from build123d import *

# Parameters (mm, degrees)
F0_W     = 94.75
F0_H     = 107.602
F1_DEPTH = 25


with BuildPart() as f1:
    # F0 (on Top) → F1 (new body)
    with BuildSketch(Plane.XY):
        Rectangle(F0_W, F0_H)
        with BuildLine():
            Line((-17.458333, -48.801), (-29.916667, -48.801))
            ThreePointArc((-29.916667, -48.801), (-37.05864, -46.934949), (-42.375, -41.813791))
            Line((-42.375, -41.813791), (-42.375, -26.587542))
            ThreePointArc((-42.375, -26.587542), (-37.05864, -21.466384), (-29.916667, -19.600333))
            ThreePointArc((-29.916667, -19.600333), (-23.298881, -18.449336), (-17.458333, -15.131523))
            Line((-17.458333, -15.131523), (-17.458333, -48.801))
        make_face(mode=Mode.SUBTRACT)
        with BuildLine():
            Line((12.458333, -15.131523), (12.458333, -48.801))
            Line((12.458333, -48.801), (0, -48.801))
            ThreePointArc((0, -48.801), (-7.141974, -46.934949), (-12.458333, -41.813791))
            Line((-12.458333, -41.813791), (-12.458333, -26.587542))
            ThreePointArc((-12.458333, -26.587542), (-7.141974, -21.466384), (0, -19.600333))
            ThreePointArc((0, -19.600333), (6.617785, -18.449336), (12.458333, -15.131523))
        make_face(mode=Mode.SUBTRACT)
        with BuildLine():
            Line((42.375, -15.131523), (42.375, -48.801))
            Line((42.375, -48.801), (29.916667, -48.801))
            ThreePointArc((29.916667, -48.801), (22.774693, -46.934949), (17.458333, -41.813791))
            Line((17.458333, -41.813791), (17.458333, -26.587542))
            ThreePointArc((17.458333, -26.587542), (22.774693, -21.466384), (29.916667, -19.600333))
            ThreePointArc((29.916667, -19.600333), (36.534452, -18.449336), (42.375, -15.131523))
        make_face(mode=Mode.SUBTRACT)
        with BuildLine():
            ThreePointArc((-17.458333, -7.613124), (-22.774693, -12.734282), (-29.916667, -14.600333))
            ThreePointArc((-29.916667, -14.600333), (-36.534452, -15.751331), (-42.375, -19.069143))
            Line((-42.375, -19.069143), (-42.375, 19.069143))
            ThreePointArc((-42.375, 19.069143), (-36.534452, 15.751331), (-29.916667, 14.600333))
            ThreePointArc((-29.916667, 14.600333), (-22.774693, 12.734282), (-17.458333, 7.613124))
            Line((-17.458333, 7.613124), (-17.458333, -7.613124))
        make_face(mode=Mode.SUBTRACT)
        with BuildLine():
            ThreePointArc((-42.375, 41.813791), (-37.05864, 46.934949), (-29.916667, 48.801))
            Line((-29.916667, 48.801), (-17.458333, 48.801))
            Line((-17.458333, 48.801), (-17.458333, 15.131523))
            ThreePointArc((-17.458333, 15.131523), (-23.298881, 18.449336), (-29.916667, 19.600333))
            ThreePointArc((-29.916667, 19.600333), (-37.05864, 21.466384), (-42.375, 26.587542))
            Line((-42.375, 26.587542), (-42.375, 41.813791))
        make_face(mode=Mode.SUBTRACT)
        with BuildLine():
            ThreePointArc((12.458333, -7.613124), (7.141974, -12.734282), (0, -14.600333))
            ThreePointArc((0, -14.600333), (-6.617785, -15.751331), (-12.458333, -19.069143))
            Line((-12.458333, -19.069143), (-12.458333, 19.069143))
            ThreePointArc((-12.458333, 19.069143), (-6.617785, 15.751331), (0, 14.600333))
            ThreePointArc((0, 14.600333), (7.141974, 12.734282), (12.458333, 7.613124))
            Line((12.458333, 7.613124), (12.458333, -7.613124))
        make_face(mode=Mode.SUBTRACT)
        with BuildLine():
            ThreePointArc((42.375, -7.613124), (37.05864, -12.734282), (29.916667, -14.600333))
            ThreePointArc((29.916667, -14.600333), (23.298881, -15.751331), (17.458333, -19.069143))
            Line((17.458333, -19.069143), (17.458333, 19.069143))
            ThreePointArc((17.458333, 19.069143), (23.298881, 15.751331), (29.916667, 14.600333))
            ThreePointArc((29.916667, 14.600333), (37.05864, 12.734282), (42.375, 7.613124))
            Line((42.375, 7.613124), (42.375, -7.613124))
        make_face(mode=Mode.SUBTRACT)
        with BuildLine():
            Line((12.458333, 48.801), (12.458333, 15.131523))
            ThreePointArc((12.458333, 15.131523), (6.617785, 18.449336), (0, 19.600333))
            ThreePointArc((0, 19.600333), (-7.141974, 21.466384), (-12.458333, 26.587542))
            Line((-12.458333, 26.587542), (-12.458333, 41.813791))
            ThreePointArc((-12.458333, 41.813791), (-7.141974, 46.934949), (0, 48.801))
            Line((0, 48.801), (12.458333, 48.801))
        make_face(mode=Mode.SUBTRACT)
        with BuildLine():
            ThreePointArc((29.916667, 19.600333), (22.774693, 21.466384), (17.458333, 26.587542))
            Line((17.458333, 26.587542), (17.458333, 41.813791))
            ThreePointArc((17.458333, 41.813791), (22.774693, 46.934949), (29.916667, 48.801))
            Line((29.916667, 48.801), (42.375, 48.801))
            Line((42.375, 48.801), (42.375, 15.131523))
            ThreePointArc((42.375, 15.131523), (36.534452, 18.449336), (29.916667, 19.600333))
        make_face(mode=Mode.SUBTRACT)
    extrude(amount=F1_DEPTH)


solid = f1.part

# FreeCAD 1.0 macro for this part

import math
import FreeCAD as App
import Part
import Sketcher
Q = App.Units.Quantity


def add_polygon(sketch, points):
    """Adds a closed chain of lines whose ends are joined by coincident constraints."""
    first, n = sketch.GeometryCount, len(points)
    for a, b in zip(points, points[1:] + points[:1]):
        sketch.addGeometry(Part.LineSegment(App.Vector(*a, 0), App.Vector(*b, 0)), False)
    for i in range(n):
        sketch.addConstraint(Sketcher.Constraint("Coincident", first + i, 2, first + (i + 1) % n, 1))

doc = App.newDocument("Part")
body = doc.addObject("PartDesign::Body", "Body")

sketch1 = body.newObject("Sketcher::SketchObject", "Sketch")
sketch1.AttachmentSupport = (doc.getObject("XY_Plane"), [""])
sketch1.MapMode = "FlatFace"
add_polygon(sketch1, [(-47, 54), (-47, -54), (47, -54), (47, 54)])
sketch1.addGeometry(Part.LineSegment(App.Vector(-17, -15, 0), App.Vector(-17, -49, 0)), False)
sketch1.addGeometry(Part.LineSegment(App.Vector(-17, -49, 0), App.Vector(-30, -49, 0)), False)
sketch1.addGeometry(Part.ArcOfCircle(Part.Circle(App.Vector(-30, -34, 0), App.Vector(0, 0, 1), 15), math.radians(-149), math.radians(-90)), False)
sketch1.addGeometry(Part.LineSegment(App.Vector(-42, -42, 0), App.Vector(-42, -27, 0)), False)
sketch1.addGeometry(Part.ArcOfCircle(Part.Circle(App.Vector(-30, -34, 0), App.Vector(0, 0, 1), 15), math.radians(90), math.radians(149)), False)
sketch1.addGeometry(Part.ArcOfCircle(Part.Circle(App.Vector(-30, 0, 0), App.Vector(0, 0, 1), 20), math.radians(-90), math.radians(-51)), False)
sketch1.addGeometry(Part.LineSegment(App.Vector(-17, 8, 0), App.Vector(-17, -8, 0)), False)
sketch1.addGeometry(Part.ArcOfCircle(Part.Circle(App.Vector(-30, 0, 0), App.Vector(0, 0, 1), 15), math.radians(-90), math.radians(-31)), False)
sketch1.addGeometry(Part.ArcOfCircle(Part.Circle(App.Vector(-30, -34, 0), App.Vector(0, 0, 1), 20), math.radians(90), math.radians(129)), False)
sketch1.addGeometry(Part.LineSegment(App.Vector(-42, -19, 0), App.Vector(-42, 19, 0)), False)
sketch1.addGeometry(Part.ArcOfCircle(Part.Circle(App.Vector(-30, 34, 0), App.Vector(0, 0, 1), 20), math.radians(-129), math.radians(-90)), False)
sketch1.addGeometry(Part.ArcOfCircle(Part.Circle(App.Vector(-30, 0, 0), App.Vector(0, 0, 1), 15), math.radians(31), math.radians(90)), False)
sketch1.addGeometry(Part.ArcOfCircle(Part.Circle(App.Vector(0, 0, 0), App.Vector(0, 0, 1), 20), math.radians(-90), math.radians(-51)), False)
sketch1.addGeometry(Part.LineSegment(App.Vector(12, -15, 0), App.Vector(12, -49, 0)), False)
sketch1.addGeometry(Part.LineSegment(App.Vector(12, -49, 0), App.Vector(0, -49, 0)), False)
sketch1.addGeometry(Part.ArcOfCircle(Part.Circle(App.Vector(0, -34, 0), App.Vector(0, 0, 1), 15), math.radians(-149), math.radians(-90)), False)
sketch1.addGeometry(Part.LineSegment(App.Vector(-12, -42, 0), App.Vector(-12, -27, 0)), False)
sketch1.addGeometry(Part.ArcOfCircle(Part.Circle(App.Vector(0, -34, 0), App.Vector(0, 0, 1), 15), math.radians(90), math.radians(149)), False)
sketch1.addGeometry(Part.ArcOfCircle(Part.Circle(App.Vector(30, 0, 0), App.Vector(0, 0, 1), 20), math.radians(-90), math.radians(-51)), False)
sketch1.addGeometry(Part.LineSegment(App.Vector(42, -15, 0), App.Vector(42, -49, 0)), False)
sketch1.addGeometry(Part.LineSegment(App.Vector(42, -49, 0), App.Vector(30, -49, 0)), False)
sketch1.addGeometry(Part.ArcOfCircle(Part.Circle(App.Vector(30, -34, 0), App.Vector(0, 0, 1), 15), math.radians(-149), math.radians(-90)), False)
sketch1.addGeometry(Part.LineSegment(App.Vector(17, -42, 0), App.Vector(17, -27, 0)), False)
sketch1.addGeometry(Part.ArcOfCircle(Part.Circle(App.Vector(30, -34, 0), App.Vector(0, 0, 1), 15), math.radians(90), math.radians(149)), False)
sketch1.addGeometry(Part.LineSegment(App.Vector(12, 8, 0), App.Vector(12, -8, 0)), False)
sketch1.addGeometry(Part.ArcOfCircle(Part.Circle(App.Vector(0, 0, 0), App.Vector(0, 0, 1), 15), math.radians(-90), math.radians(-31)), False)
sketch1.addGeometry(Part.ArcOfCircle(Part.Circle(App.Vector(0, -34, 0), App.Vector(0, 0, 1), 20), math.radians(90), math.radians(129)), False)
sketch1.addGeometry(Part.LineSegment(App.Vector(-12, -19, 0), App.Vector(-12, 19, 0)), False)
sketch1.addGeometry(Part.ArcOfCircle(Part.Circle(App.Vector(0, 34, 0), App.Vector(0, 0, 1), 20), math.radians(-129), math.radians(-90)), False)
sketch1.addGeometry(Part.ArcOfCircle(Part.Circle(App.Vector(0, 0, 0), App.Vector(0, 0, 1), 15), math.radians(31), math.radians(90)), False)
sketch1.addGeometry(Part.LineSegment(App.Vector(42, 8, 0), App.Vector(42, -8, 0)), False)
sketch1.addGeometry(Part.ArcOfCircle(Part.Circle(App.Vector(30, 0, 0), App.Vector(0, 0, 1), 15), math.radians(-90), math.radians(-31)), False)
sketch1.addGeometry(Part.ArcOfCircle(Part.Circle(App.Vector(30, -34, 0), App.Vector(0, 0, 1), 20), math.radians(90), math.radians(129)), False)
sketch1.addGeometry(Part.LineSegment(App.Vector(17, -19, 0), App.Vector(17, 19, 0)), False)
sketch1.addGeometry(Part.ArcOfCircle(Part.Circle(App.Vector(30, 34, 0), App.Vector(0, 0, 1), 20), math.radians(-129), math.radians(-90)), False)
sketch1.addGeometry(Part.ArcOfCircle(Part.Circle(App.Vector(30, 0, 0), App.Vector(0, 0, 1), 15), math.radians(31), math.radians(90)), False)
sketch1.addGeometry(Part.LineSegment(App.Vector(-42, 27, 0), App.Vector(-42, 42, 0)), False)
sketch1.addGeometry(Part.ArcOfCircle(Part.Circle(App.Vector(-30, 34, 0), App.Vector(0, 0, 1), 15), math.radians(90), math.radians(149)), False)
sketch1.addGeometry(Part.LineSegment(App.Vector(-30, 49, 0), App.Vector(-17, 49, 0)), False)
sketch1.addGeometry(Part.LineSegment(App.Vector(-17, 49, 0), App.Vector(-17, 15, 0)), False)
sketch1.addGeometry(Part.ArcOfCircle(Part.Circle(App.Vector(-30, 0, 0), App.Vector(0, 0, 1), 20), math.radians(51), math.radians(90)), False)
sketch1.addGeometry(Part.ArcOfCircle(Part.Circle(App.Vector(-30, 34, 0), App.Vector(0, 0, 1), 15), math.radians(-149), math.radians(-90)), False)
sketch1.addGeometry(Part.LineSegment(App.Vector(0, 49, 0), App.Vector(12, 49, 0)), False)
sketch1.addGeometry(Part.LineSegment(App.Vector(12, 49, 0), App.Vector(12, 15, 0)), False)
sketch1.addGeometry(Part.ArcOfCircle(Part.Circle(App.Vector(0, 0, 0), App.Vector(0, 0, 1), 20), math.radians(51), math.radians(90)), False)
sketch1.addGeometry(Part.ArcOfCircle(Part.Circle(App.Vector(0, 34, 0), App.Vector(0, 0, 1), 15), math.radians(-149), math.radians(-90)), False)
sketch1.addGeometry(Part.LineSegment(App.Vector(-12, 27, 0), App.Vector(-12, 42, 0)), False)
sketch1.addGeometry(Part.ArcOfCircle(Part.Circle(App.Vector(0, 34, 0), App.Vector(0, 0, 1), 15), math.radians(90), math.radians(149)), False)
sketch1.addGeometry(Part.ArcOfCircle(Part.Circle(App.Vector(30, 0, 0), App.Vector(0, 0, 1), 20), math.radians(51), math.radians(90)), False)
sketch1.addGeometry(Part.ArcOfCircle(Part.Circle(App.Vector(30, 34, 0), App.Vector(0, 0, 1), 15), math.radians(-149), math.radians(-90)), False)
sketch1.addGeometry(Part.LineSegment(App.Vector(17, 27, 0), App.Vector(17, 42, 0)), False)
sketch1.addGeometry(Part.ArcOfCircle(Part.Circle(App.Vector(30, 34, 0), App.Vector(0, 0, 1), 15), math.radians(90), math.radians(149)), False)
sketch1.addGeometry(Part.LineSegment(App.Vector(30, 49, 0), App.Vector(42, 49, 0)), False)
sketch1.addGeometry(Part.LineSegment(App.Vector(42, 49, 0), App.Vector(42, 15, 0)), False)
sketch1.addConstraint([
    Sketcher.Constraint("Coincident", 4, 2, 5, 1),
    Sketcher.Constraint("Tangent", 5, 2, 6, 2),
    Sketcher.Constraint("Coincident", 6, 1, 7, 1),
    Sketcher.Constraint("Coincident", 7, 2, 8, 2),
    Sketcher.Constraint("Tangent", 8, 1, 9, 1),
    Sketcher.Constraint("Coincident", 9, 2, 4, 1),
    Sketcher.Constraint("Coincident", 10, 2, 11, 2),
    Sketcher.Constraint("Tangent", 11, 1, 12, 1),
    Sketcher.Constraint("Coincident", 12, 2, 13, 1),
    Sketcher.Constraint("Coincident", 13, 2, 14, 1),
    Sketcher.Constraint("Tangent", 14, 2, 15, 2),
    Sketcher.Constraint("Coincident", 15, 1, 10, 1),
    Sketcher.Constraint("Coincident", 16, 2, 17, 1),
    Sketcher.Constraint("Coincident", 17, 2, 18, 1),
    Sketcher.Constraint("Tangent", 18, 2, 19, 2),
    Sketcher.Constraint("Coincident", 19, 1, 20, 1),
    Sketcher.Constraint("Coincident", 20, 2, 21, 2),
    Sketcher.Constraint("Tangent", 21, 1, 16, 1),
    Sketcher.Constraint("Coincident", 22, 2, 23, 1),
    Sketcher.Constraint("Coincident", 23, 2, 24, 1),
    Sketcher.Constraint("Tangent", 24, 2, 25, 2),
    Sketcher.Constraint("Coincident", 25, 1, 26, 1),
    Sketcher.Constraint("Coincident", 26, 2, 27, 2),
    Sketcher.Constraint("Tangent", 27, 1, 22, 1),
    Sketcher.Constraint("Coincident", 28, 2, 29, 2),
    Sketcher.Constraint("Tangent", 29, 1, 30, 1),
    Sketcher.Constraint("Coincident", 30, 2, 31, 1),
    Sketcher.Constraint("Coincident", 31, 2, 32, 1),
    Sketcher.Constraint("Tangent", 32, 2, 33, 2),
    Sketcher.Constraint("Coincident", 33, 1, 28, 1),
    Sketcher.Constraint("Coincident", 34, 2, 35, 2),
    Sketcher.Constraint("Tangent", 35, 1, 36, 1),
    Sketcher.Constraint("Coincident", 36, 2, 37, 1),
    Sketcher.Constraint("Coincident", 37, 2, 38, 1),
    Sketcher.Constraint("Tangent", 38, 2, 39, 2),
    Sketcher.Constraint("Coincident", 39, 1, 34, 1),
    Sketcher.Constraint("Coincident", 40, 2, 41, 2),
    Sketcher.Constraint("Tangent", 41, 1, 42, 1),
    Sketcher.Constraint("Coincident", 42, 2, 43, 1),
    Sketcher.Constraint("Coincident", 43, 2, 44, 1),
    Sketcher.Constraint("Tangent", 44, 2, 45, 2),
    Sketcher.Constraint("Coincident", 45, 1, 40, 1),
    Sketcher.Constraint("Coincident", 46, 2, 47, 1),
    Sketcher.Constraint("Coincident", 47, 2, 48, 1),
    Sketcher.Constraint("Tangent", 48, 2, 49, 2),
    Sketcher.Constraint("Coincident", 49, 1, 50, 1),
    Sketcher.Constraint("Coincident", 50, 2, 51, 2),
    Sketcher.Constraint("Tangent", 51, 1, 46, 1),
    Sketcher.Constraint("Tangent", 52, 2, 53, 2),
    Sketcher.Constraint("Coincident", 53, 1, 54, 1),
    Sketcher.Constraint("Coincident", 54, 2, 55, 2),
    Sketcher.Constraint("Tangent", 55, 1, 56, 1),
    Sketcher.Constraint("Coincident", 56, 2, 57, 1),
    Sketcher.Constraint("Coincident", 57, 2, 52, 1),
    Sketcher.Constraint("Vertical", 0),
    Sketcher.Constraint("Horizontal", 1),
    Sketcher.Constraint("Vertical", 2),
    Sketcher.Constraint("Horizontal", 3),
    Sketcher.Constraint("Vertical", 4),
    Sketcher.Constraint("Horizontal", 5),
    Sketcher.Constraint("Vertical", 7),
    Sketcher.Constraint("Vertical", 10),
    Sketcher.Constraint("Vertical", 13),
    Sketcher.Constraint("Vertical", 17),
    Sketcher.Constraint("Horizontal", 18),
    Sketcher.Constraint("Vertical", 20),
    Sketcher.Constraint("Vertical", 23),
    Sketcher.Constraint("Horizontal", 24),
    Sketcher.Constraint("Vertical", 26),
    Sketcher.Constraint("Vertical", 28),
    Sketcher.Constraint("Vertical", 31),
    Sketcher.Constraint("Vertical", 34),
    Sketcher.Constraint("Vertical", 37),
    Sketcher.Constraint("Vertical", 40),
    Sketcher.Constraint("Horizontal", 42),
    Sketcher.Constraint("Vertical", 43),
    Sketcher.Constraint("Horizontal", 46),
    Sketcher.Constraint("Vertical", 47),
    Sketcher.Constraint("Vertical", 50),
    Sketcher.Constraint("Vertical", 54),
    Sketcher.Constraint("Horizontal", 56),
    Sketcher.Constraint("Vertical", 57),
    Sketcher.Constraint("Coincident", 29, 3, -1, 1),
    Sketcher.Constraint("Coincident", 33, 3, -1, 1),
    Sketcher.Constraint("Coincident", 8, 3, 6, 3),
    Sketcher.Constraint("Coincident", 12, 3, 6, 3),
    Sketcher.Constraint("Coincident", 15, 3, 11, 3),
    Sketcher.Constraint("Coincident", 21, 3, 19, 3),
    Sketcher.Constraint("Coincident", 27, 3, 25, 3),
    Sketcher.Constraint("Coincident", 29, 3, 16, 3),
    Sketcher.Constraint("Coincident", 30, 3, 19, 3),
    Sketcher.Constraint("Coincident", 36, 3, 25, 3),
    Sketcher.Constraint("Coincident", 39, 3, 35, 3),
    Sketcher.Constraint("Coincident", 41, 3, 14, 3),
    Sketcher.Constraint("Coincident", 45, 3, 14, 3),
    Sketcher.Constraint("Coincident", 48, 3, 33, 3),
    Sketcher.Constraint("Coincident", 49, 3, 32, 3),
    Sketcher.Constraint("Coincident", 51, 3, 32, 3),
    Sketcher.Constraint("Coincident", 53, 3, 38, 3),
    Sketcher.Constraint("Coincident", 55, 3, 38, 3),
    Sketcher.Constraint("Equal", 6, 8),
    Sketcher.Constraint("Equal", 8, 11),
    Sketcher.Constraint("Equal", 12, 14),
    Sketcher.Constraint("Equal", 11, 15),
    Sketcher.Constraint("Equal", 9, 16),
    Sketcher.Constraint("Equal", 19, 21),
    Sketcher.Constraint("Equal", 16, 22),
    Sketcher.Constraint("Equal", 15, 25),
    Sketcher.Constraint("Equal", 25, 27),
    Sketcher.Constraint("Equal", 21, 29),
    Sketcher.Constraint("Equal", 14, 30),
    Sketcher.Constraint("Equal", 30, 32),
    Sketcher.Constraint("Equal", 29, 33),
    Sketcher.Constraint("Equal", 27, 35),
    Sketcher.Constraint("Equal", 32, 36),
    Sketcher.Constraint("Equal", 36, 38),
    Sketcher.Constraint("Equal", 35, 39),
    Sketcher.Constraint("Equal", 39, 41),
    Sketcher.Constraint("Equal", 22, 44),
    Sketcher.Constraint("Equal", 41, 45),
    Sketcher.Constraint("Equal", 44, 48),
    Sketcher.Constraint("Equal", 49, 51),
    Sketcher.Constraint("Equal", 48, 52),
    Sketcher.Constraint("Equal", 45, 53),
    Sketcher.Constraint("Equal", 53, 55),
    Sketcher.Constraint("Symmetric", 14, 3, 25, 3, -1, 1),
    Sketcher.Constraint("Symmetric", 0, 2, 2, 2, -1, 1),
    Sketcher.Constraint("Symmetric", 9, 3, 22, 3, -2),
    Sketcher.Constraint("Symmetric", 6, 1, 40, 2, -1),
    Sketcher.Constraint("Symmetric", 9, 2, 43, 2, -1),
    Sketcher.Constraint("Symmetric", 20, 2, 49, 1, -1),
    Sketcher.Constraint("Symmetric", 26, 2, 53, 1, -1),
    Sketcher.Constraint("Symmetric", 22, 2, 57, 2, -1),
    Sketcher.Constraint("PointOnObject", 19, 3, -2),
    Sketcher.Constraint("Horizontal", 12, 3, 19, 3),
    Sketcher.Constraint("Horizontal", 9, 2, 16, 2),
    Sketcher.Constraint("Horizontal", 6, 1, 19, 1),
    Sketcher.Constraint("Horizontal", 16, 2, 22, 2),
    Sketcher.Constraint("Horizontal", 19, 1, 25, 1),
    Sketcher.Constraint("Horizontal", 10, 2, 28, 2),
    Sketcher.Constraint("Horizontal", 12, 2, 30, 2),
    Sketcher.Constraint("Horizontal", 28, 2, 34, 2),
    Sketcher.Constraint("Horizontal", 30, 2, 36, 2),
    Sketcher.Constraint("Horizontal", 43, 2, 47, 2),
    Sketcher.Constraint("Vertical", 8, 3, 11, 3),
    Sketcher.Constraint("Vertical", 27, 3, 35, 3),
    Sketcher.Constraint("Vertical", 5, 2, 8, 1),
    Sketcher.Constraint("Vertical", 9, 2, 10, 2),
    Sketcher.Constraint("Vertical", 7, 2, 12, 2),
    Sketcher.Constraint("Equal", 7, 10),
    Sketcher.Constraint("DistanceX", 1, 1, 1, 2, Q("94.75 mm")),
    Sketcher.Constraint("DistanceY", 0, 2, 0, 1, Q("107.602 mm")),
    Sketcher.Constraint("Radius", 19, Q("14.600331 mm")),
    Sketcher.Constraint("DistanceY", 4, 2, -1, 1, Q("48.801 mm")),
    Sketcher.Constraint("DistanceX", 6, 1, -1, 1, Q("42.375 mm")),
    Sketcher.Constraint("DistanceY", 7, 1, 7, 2, Q("15.226249 mm")),
])
pad1 = body.newObject("PartDesign::Pad", "Pad")
pad1.Profile = sketch1
pad1.Length = 25

doc.recompute()
